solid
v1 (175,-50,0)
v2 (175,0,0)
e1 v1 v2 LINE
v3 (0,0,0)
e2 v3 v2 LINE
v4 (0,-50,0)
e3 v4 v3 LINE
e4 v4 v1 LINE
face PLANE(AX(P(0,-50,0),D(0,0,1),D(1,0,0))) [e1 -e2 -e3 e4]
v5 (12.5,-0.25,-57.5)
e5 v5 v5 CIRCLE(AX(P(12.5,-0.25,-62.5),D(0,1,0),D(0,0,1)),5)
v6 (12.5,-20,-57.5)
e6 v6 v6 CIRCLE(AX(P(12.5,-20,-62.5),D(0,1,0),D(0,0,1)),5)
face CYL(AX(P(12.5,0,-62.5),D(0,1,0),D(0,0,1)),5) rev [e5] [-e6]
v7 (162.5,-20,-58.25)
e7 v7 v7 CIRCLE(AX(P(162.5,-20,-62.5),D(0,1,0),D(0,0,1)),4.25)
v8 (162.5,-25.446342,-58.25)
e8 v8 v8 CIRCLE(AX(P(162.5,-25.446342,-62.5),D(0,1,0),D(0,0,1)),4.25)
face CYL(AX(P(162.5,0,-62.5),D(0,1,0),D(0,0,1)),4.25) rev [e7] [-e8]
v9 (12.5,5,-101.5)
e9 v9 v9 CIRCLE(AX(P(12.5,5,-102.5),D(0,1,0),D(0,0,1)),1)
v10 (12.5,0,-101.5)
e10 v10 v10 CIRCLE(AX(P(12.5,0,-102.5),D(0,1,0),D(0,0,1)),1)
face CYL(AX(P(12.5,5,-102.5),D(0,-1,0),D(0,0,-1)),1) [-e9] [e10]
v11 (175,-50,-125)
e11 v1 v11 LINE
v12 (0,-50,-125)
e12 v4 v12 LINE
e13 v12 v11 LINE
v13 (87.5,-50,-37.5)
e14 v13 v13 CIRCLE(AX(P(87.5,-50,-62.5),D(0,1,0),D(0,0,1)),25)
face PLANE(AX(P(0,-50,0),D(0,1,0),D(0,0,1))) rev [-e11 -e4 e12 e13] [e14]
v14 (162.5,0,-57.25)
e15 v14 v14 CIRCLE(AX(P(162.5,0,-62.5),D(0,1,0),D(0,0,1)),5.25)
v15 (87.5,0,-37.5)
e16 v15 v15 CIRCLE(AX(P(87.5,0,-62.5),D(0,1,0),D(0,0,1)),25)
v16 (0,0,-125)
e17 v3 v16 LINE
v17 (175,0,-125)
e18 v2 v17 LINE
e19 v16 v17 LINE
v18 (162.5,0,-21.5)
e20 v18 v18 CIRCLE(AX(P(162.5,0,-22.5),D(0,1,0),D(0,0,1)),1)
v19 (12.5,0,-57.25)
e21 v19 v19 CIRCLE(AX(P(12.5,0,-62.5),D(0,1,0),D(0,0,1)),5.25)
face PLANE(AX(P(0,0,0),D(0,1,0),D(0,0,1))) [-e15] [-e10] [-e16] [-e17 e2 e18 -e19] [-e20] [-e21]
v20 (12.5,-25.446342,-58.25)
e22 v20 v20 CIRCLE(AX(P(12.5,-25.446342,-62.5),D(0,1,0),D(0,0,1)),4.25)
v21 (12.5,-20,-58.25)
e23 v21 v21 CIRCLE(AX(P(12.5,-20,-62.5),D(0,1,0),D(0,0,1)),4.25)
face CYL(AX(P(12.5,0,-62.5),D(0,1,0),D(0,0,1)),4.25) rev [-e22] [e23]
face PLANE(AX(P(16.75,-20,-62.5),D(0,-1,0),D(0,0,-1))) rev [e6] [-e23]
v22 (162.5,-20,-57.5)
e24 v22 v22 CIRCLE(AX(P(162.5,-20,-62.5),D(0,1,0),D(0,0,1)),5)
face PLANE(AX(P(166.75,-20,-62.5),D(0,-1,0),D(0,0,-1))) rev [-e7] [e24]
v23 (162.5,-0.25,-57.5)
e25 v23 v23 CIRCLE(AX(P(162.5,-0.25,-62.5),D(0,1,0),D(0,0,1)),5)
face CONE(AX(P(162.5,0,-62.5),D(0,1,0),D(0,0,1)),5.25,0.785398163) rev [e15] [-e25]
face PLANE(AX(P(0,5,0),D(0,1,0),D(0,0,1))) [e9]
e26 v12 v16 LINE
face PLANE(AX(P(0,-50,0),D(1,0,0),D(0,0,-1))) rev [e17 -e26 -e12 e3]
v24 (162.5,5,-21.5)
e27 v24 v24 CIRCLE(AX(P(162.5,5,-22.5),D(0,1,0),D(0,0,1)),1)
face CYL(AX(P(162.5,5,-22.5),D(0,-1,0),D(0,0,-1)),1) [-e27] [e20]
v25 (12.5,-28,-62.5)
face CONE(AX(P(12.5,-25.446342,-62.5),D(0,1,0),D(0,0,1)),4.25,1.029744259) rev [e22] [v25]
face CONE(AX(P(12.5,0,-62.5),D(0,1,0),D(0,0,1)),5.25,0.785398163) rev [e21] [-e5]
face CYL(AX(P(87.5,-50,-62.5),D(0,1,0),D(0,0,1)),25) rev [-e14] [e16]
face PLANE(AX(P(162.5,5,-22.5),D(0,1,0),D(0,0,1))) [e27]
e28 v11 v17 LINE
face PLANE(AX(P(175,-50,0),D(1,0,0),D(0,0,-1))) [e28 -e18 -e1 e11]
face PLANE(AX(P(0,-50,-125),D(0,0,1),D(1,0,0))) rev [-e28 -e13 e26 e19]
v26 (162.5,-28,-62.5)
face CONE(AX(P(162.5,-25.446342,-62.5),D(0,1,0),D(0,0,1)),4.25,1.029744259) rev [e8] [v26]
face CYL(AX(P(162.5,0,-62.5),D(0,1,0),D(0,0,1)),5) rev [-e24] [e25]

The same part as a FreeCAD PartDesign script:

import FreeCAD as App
import Part
import Sketcher

V = App.Vector
Q = App.Units.Quantity

doc = App.newDocument("Part")
body = doc.addObject("PartDesign::Body", "Body")

sketch1 = body.newObject("Sketcher::SketchObject", "Sketch")
sketch1.AttachmentSupport = (doc.getObject("XZ_Plane"), [""])
sketch1.MapMode = "FlatFace"
sketch1.addGeometry([
    Part.LineSegment(V(0, -125, 0), V(0, 0, 0)),
    Part.LineSegment(V(0, 0, 0), V(175, 0, 0)),
    Part.LineSegment(V(175, 0, 0), V(175, -125, 0)),
    Part.LineSegment(V(175, -125, 0), V(0, -125, 0)),
    Part.Circle(V(88, -62, 0), V(0, 0, 1), 25),
], False)
sketch1.addConstraint([
    Sketcher.Constraint("Coincident", 0, 2, 1, 1),
    Sketcher.Constraint("Coincident", 1, 2, 2, 1),
    Sketcher.Constraint("Coincident", 2, 2, 3, 1),
    Sketcher.Constraint("Coincident", 3, 2, 0, 1),
    Sketcher.Constraint("Vertical", 0),
    Sketcher.Constraint("Horizontal", 1),
    Sketcher.Constraint("Vertical", 2),
    Sketcher.Constraint("Horizontal", 3),
    Sketcher.Constraint("Coincident", 0, 2, -1, 1),
    Sketcher.Constraint("Diameter", 4, Q("50 mm")),
    Sketcher.Constraint("DistanceX", 1, 1, 1, 2, Q("175 mm")),
    Sketcher.Constraint("DistanceY", 0, 1, 0, 2, Q("125 mm")),
    Sketcher.Constraint("DistanceX", -1, 1, 4, 3, Q("87.5 mm")),
    Sketcher.Constraint("DistanceY", 4, 3, -1, 1, Q("62.5 mm")),
])
pad1 = body.newObject("PartDesign::Pad", "Pad")
pad1.Profile = sketch1
pad1.Length = 50

sketch2 = body.newObject("Sketcher::SketchObject", "Sketch001")
sketch2.AttachmentSupport = (doc.getObject("XZ_Plane"), [""])
sketch2.MapMode = "FlatFace"
sketch2.addGeometry([
    Part.Circle(V(12.5, -102.5, 0), V(0, 0, 1), 1),
    Part.Circle(V(162.5, -22.5, 0), V(0, 0, 1), 1),
], False)
sketch2.addConstraint([
    Sketcher.Constraint("Equal", 0, 1),
    Sketcher.Constraint("Diameter", 0, Q("2 mm")),
    Sketcher.Constraint("DistanceX", 0, 3, 1, 3, Q("150 mm")),
    Sketcher.Constraint("DistanceY", 0, 3, 1, 3, Q("80 mm")),
    Sketcher.Constraint("DistanceX", -1, 1, 0, 3, Q("12.5 mm")),
    Sketcher.Constraint("DistanceY", 0, 3, -1, 1, Q("102.5 mm")),
])
pad2 = body.newObject("PartDesign::Pad", "Pad001")
pad2.Profile = sketch2
pad2.Length = 5
pad2.Reversed = True

sketch3 = body.newObject("Sketcher::SketchObject", "Sketch002")
sketch3.AttachmentSupport = (doc.getObject("YZ_Plane"), [""])
sketch3.MapMode = "FlatFace"
sketch3.AttachmentOffset = App.Placement(V(0, 0, 12.5), App.Rotation())
sketch3.addGeometry([
    Part.LineSegment(V(-28, -62.5, 0), V(0, -62.5, 0)),
    Part.LineSegment(V(0, -62.5, 0), V(0, -57.25, 0)),
    Part.LineSegment(V(0, -57.25, 0), V(-0.25, -57.5, 0)),
    Part.LineSegment(V(-0.25, -57.5, 0), V(-20, -57.5, 0)),
    Part.LineSegment(V(-20, -57.5, 0), V(-20, -58.25, 0)),
    Part.LineSegment(V(-20, -58.25, 0), V(-25.45, -58.25, 0)),
    Part.LineSegment(V(-25.45, -58.25, 0), V(-28, -62.5, 0)),
], False)
sketch3.addGeometry(Part.LineSegment(V(0, -62.5, 0), V(-28, -62.5, 0)), True)
sketch3.addConstraint([
    Sketcher.Constraint("Coincident", 0, 2, 1, 1),
    Sketcher.Constraint("Coincident", 1, 2, 2, 1),
    Sketcher.Constraint("Coincident", 2, 2, 3, 1),
    Sketcher.Constraint("Coincident", 3, 2, 4, 1),
    Sketcher.Constraint("Coincident", 4, 2, 5, 1),
    Sketcher.Constraint("Coincident", 5, 2, 6, 1),
    Sketcher.Constraint("Coincident", 6, 2, 0, 1),
    Sketcher.Constraint("Horizontal", 0),
    Sketcher.Constraint("Vertical", 1),
    Sketcher.Constraint("Horizontal", 3),
    Sketcher.Constraint("Vertical", 4),
    Sketcher.Constraint("Horizontal", 5),
    Sketcher.Constraint("Horizontal", 7),
    Sketcher.Constraint("Coincident", 7, 1, 0, 2),
    Sketcher.Constraint("PointOnObject", 0, 2, -2),
    Sketcher.Constraint("Equal", 0, 7),
    Sketcher.Constraint("DistanceX", 0, 1, 0, 2, Q("28 mm")),
    Sketcher.Constraint("Angle", 2, Q("-135 deg")),
    Sketcher.Constraint("Angle", 6, Q("-121 deg")),
    Sketcher.Constraint("DistanceX", 3, 2, -1, 1, Q("20 mm")),
    Sketcher.Constraint("DistanceY", 0, 2, 2, 2, Q("5 mm")),
    Sketcher.Constraint("DistanceY", 4, 2, 1, 2, Q("1 mm")),
    Sketcher.Constraint("DistanceX", 3, 2, 3, 1, Q("19.75 mm")),
    Sketcher.Constraint("DistanceY", 0, 2, -1, 1, Q("62.5 mm")),
])
groove = body.newObject("PartDesign::Groove", "Groove")
groove.Profile = sketch3
groove.ReferenceAxis = (sketch3, ["Axis0"])
groove.Angle = 360
doc.recompute()

linearpattern = body.newObject("PartDesign::LinearPattern", "LinearPattern")
linearpattern.Originals = [groove]
linearpattern.Direction = (doc.getObject("X_Axis"), [""])
linearpattern.Mode = "offset"
linearpattern.Offset = 150
linearpattern.Occurrences = 2
body.Tip = linearpattern

doc.recompute()
